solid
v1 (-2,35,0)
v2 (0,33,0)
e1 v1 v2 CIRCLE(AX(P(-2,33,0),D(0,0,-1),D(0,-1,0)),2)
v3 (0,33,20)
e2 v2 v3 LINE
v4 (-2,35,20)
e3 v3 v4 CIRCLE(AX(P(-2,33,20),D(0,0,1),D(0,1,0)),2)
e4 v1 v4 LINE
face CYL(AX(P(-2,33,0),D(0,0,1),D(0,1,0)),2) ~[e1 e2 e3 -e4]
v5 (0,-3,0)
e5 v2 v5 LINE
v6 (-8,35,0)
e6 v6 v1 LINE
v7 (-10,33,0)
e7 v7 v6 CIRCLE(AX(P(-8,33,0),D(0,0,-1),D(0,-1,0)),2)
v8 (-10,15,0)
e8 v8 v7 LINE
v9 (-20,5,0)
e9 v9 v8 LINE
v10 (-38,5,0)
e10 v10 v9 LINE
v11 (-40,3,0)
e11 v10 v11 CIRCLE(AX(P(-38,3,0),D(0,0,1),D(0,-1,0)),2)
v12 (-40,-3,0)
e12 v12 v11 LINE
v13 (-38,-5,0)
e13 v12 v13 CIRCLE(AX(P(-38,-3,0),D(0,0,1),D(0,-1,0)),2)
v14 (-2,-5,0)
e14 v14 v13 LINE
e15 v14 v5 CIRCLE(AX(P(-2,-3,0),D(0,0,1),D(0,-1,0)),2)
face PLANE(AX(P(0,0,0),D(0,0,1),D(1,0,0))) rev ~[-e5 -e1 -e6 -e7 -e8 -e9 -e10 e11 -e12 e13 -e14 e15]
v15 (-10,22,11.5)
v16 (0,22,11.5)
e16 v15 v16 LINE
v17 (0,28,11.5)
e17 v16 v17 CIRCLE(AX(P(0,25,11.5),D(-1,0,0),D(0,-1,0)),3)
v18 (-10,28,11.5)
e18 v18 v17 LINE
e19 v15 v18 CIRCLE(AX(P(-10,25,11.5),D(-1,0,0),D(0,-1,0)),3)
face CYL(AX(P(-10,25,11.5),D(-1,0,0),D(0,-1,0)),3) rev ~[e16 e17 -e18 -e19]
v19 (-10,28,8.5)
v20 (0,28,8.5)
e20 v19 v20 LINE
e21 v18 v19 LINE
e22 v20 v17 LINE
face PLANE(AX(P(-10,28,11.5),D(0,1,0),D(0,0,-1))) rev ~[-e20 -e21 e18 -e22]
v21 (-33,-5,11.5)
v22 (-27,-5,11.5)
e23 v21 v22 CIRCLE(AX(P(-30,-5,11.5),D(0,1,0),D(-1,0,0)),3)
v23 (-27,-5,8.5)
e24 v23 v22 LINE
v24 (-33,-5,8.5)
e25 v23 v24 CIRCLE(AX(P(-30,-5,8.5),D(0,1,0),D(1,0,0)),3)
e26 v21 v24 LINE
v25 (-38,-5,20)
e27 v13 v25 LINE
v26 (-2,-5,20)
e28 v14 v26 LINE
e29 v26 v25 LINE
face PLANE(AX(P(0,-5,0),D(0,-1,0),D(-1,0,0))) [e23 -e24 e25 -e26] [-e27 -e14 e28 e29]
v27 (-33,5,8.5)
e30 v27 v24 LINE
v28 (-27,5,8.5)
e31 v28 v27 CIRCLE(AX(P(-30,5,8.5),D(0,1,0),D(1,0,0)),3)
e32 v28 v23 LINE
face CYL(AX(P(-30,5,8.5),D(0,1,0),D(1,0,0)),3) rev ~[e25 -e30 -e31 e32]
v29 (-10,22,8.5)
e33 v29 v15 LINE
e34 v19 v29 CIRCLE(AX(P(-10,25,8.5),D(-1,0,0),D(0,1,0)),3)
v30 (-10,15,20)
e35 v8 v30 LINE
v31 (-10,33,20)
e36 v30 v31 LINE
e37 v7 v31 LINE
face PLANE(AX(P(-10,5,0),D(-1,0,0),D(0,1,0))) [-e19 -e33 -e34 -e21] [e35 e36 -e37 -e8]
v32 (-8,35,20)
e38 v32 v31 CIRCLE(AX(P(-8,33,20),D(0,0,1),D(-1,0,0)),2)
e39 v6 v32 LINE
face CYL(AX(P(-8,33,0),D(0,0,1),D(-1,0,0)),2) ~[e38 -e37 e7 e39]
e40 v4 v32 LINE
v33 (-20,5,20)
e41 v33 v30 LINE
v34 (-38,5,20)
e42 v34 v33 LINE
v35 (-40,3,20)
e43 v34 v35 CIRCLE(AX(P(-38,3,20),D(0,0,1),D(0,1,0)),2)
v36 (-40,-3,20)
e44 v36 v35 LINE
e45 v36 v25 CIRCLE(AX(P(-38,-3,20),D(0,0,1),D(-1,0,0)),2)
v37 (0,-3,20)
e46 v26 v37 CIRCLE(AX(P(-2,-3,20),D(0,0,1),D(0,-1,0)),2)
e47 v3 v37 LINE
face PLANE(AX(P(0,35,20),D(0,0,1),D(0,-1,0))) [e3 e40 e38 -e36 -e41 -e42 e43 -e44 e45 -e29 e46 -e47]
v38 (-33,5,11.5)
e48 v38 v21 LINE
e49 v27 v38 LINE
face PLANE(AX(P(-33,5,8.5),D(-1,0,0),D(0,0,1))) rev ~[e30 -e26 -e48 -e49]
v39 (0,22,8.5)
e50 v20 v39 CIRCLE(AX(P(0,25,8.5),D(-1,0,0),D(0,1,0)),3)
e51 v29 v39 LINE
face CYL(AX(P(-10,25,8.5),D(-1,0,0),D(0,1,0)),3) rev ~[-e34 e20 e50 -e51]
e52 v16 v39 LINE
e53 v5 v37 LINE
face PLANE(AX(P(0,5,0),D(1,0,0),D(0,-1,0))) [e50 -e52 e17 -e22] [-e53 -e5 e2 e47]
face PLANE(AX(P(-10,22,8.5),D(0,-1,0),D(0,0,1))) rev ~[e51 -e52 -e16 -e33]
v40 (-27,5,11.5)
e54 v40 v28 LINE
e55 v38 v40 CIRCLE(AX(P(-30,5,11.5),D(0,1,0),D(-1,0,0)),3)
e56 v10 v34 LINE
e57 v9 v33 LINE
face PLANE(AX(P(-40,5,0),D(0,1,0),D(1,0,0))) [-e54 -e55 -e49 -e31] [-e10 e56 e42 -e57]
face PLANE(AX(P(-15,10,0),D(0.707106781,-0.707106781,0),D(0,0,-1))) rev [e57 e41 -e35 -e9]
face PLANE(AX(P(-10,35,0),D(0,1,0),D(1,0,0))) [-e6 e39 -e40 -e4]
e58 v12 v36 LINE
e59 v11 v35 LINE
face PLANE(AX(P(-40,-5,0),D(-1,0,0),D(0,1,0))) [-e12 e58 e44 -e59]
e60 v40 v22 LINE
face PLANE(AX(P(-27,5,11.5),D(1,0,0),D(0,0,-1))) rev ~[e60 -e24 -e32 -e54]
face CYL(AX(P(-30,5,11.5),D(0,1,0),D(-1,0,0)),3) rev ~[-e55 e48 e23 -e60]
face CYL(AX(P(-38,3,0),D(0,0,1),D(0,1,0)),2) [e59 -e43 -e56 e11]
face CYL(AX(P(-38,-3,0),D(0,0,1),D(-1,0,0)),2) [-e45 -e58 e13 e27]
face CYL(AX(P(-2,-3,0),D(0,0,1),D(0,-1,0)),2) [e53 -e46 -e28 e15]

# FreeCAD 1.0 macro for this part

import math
import FreeCAD as App
import Part
import Sketcher


def edges_at(feature, points):
    """Names of the edges that pass closest to the given points."""
    edges = feature.Shape.Edges
    near = lambda p: min(range(len(edges)), key=lambda i: edges[i].distToShape(Part.Vertex(*p))[0])
    return sorted({f"Edge{near(p) + 1}" for p in points})


def add_polygon(sketch, points):
    """Adds a closed chain of lines whose ends are joined by coincident constraints."""
    first, n = sketch.GeometryCount, len(points)
    for a, b in zip(points, points[1:] + points[:1]):
        sketch.addGeometry(Part.LineSegment(App.Vector(*a, 0), App.Vector(*b, 0)), False)
    for i in range(n):
        sketch.addConstraint(Sketcher.Constraint("Coincident", first + i, 2, first + (i + 1) % n, 1))

doc = App.newDocument("Part")
body = doc.addObject("PartDesign::Body", "Body")

# Sketch on XY plane
sketch1 = body.newObject("Sketcher::SketchObject", "Sketch")
sketch1.AttachmentSupport = (doc.getObject("XY_Plane"), [""])
sketch1.MapMode = "FlatFace"
add_polygon(sketch1, [(-10, 5), (-40, 5), (-40, -5), (0, -5), (0, 35), (-10, 35)])  # lines 0-5
sketch1.addConstraint(Sketcher.Constraint("Horizontal", 0))
sketch1.addConstraint(Sketcher.Constraint("Vertical", 1))
sketch1.addConstraint(Sketcher.Constraint("Horizontal", 2))
sketch1.addConstraint(Sketcher.Constraint("Vertical", 3))
sketch1.addConstraint(Sketcher.Constraint("Horizontal", 4))
sketch1.addConstraint(Sketcher.Constraint("Vertical", 5))
sketch1.addConstraint(Sketcher.Constraint("PointOnObject", 2, 2, -2))
sketch1.addConstraint(Sketcher.Constraint("Equal", 4, 1))
sketch1.addConstraint(Sketcher.Constraint("Equal", 2, 3))
sketch1.addConstraint(Sketcher.Constraint("DistanceX", 2, 1, 2, 2, 40.0))
sketch1.addConstraint(Sketcher.Constraint("DistanceX", 4, 2, 4, 1, 10.0))
sketch1.addConstraint(Sketcher.Constraint("DistanceY", -1, 1, 0, 2, 5.0))
pad1 = body.newObject("PartDesign::Pad", "Pad")
pad1.Profile = sketch1
pad1.Length = 40

# Sketch on YZ plane
sketch2 = body.newObject("Sketcher::SketchObject", "Sketch001")
sketch2.AttachmentSupport = (doc.getObject("YZ_Plane"), [""])
sketch2.MapMode = "FlatFace"
sketch2.AttachmentOffset = App.Placement(App.Vector(0, 0, -10), App.Rotation())
sketch2.addGeometry(Part.ArcOfCircle(Part.Circle(App.Vector(25, 8.5, 0), App.Vector(0, 0, 1), 3), math.radians(180), math.radians(360)), False)
sketch2.addGeometry(Part.LineSegment(App.Vector(22, 8.5, 0), App.Vector(22, 11.5, 0)), False)
sketch2.addGeometry(Part.ArcOfCircle(Part.Circle(App.Vector(25, 11.5, 0), App.Vector(0, 0, 1), 3), math.radians(0), math.radians(180)), False)
sketch2.addGeometry(Part.LineSegment(App.Vector(28, 11.5, 0), App.Vector(28, 8.5, 0)), False)
sketch2.addGeometry(Part.LineSegment(App.Vector(22, 28.5, 0), App.Vector(22, 31.5, 0)), False)
sketch2.addGeometry(Part.ArcOfCircle(Part.Circle(App.Vector(25, 31.5, 0), App.Vector(0, 0, 1), 3), math.radians(0), math.radians(180)), False)
sketch2.addGeometry(Part.LineSegment(App.Vector(28, 31.5, 0), App.Vector(28, 28.5, 0)), False)
sketch2.addGeometry(Part.ArcOfCircle(Part.Circle(App.Vector(25, 28.5, 0), App.Vector(0, 0, 1), 3), math.radians(180), math.radians(360)), False)
sketch2.addConstraint(Sketcher.Constraint("Tangent", 0, 1, 1, 1))
sketch2.addConstraint(Sketcher.Constraint("Tangent", 1, 2, 2, 2))
sketch2.addConstraint(Sketcher.Constraint("Tangent", 2, 1, 3, 1))
sketch2.addConstraint(Sketcher.Constraint("Tangent", 3, 2, 0, 2))
sketch2.addConstraint(Sketcher.Constraint("Tangent", 4, 2, 5, 2))
sketch2.addConstraint(Sketcher.Constraint("Tangent", 5, 1, 6, 1))
sketch2.addConstraint(Sketcher.Constraint("Tangent", 6, 2, 7, 2))
sketch2.addConstraint(Sketcher.Constraint("Tangent", 7, 1, 4, 1))
sketch2.addConstraint(Sketcher.Constraint("Vertical", 1))
sketch2.addConstraint(Sketcher.Constraint("Vertical", 3))
sketch2.addConstraint(Sketcher.Constraint("Vertical", 4))
sketch2.addConstraint(Sketcher.Constraint("Vertical", 6))
sketch2.addConstraint(Sketcher.Constraint("Equal", 2, 5))
sketch2.addConstraint(Sketcher.Constraint("Vertical", 2, 3, 5, 3))
sketch2.addConstraint(Sketcher.Constraint("Equal", 3, 4))
sketch2.addConstraint(Sketcher.Constraint("Radius", 0, 3.0))
sketch2.addConstraint(Sketcher.Constraint("DistanceY", 1, 1, 1, 2, 3.0))
sketch2.addConstraint(Sketcher.Constraint("DistanceX", -1, 1, 0, 3, 25.0))
sketch2.addConstraint(Sketcher.Constraint("DistanceY", 2, 3, 5, 3, 20.0))
sketch2.addConstraint(Sketcher.Constraint("DistanceY", -1, 1, 0, 3, 8.5))
pocket1 = body.newObject("PartDesign::Pocket", "Pocket")
pocket1.Profile = sketch2
pocket1.Type = "ThroughAll"
pocket1.Reversed = True

# Sketch on XZ plane
sketch3 = body.newObject("Sketcher::SketchObject", "Sketch002")
sketch3.AttachmentSupport = (doc.getObject("XZ_Plane"), [""])
sketch3.MapMode = "FlatFace"
sketch3.AttachmentOffset = App.Placement(App.Vector(0, 0, -5), App.Rotation())
sketch3.addGeometry(Part.ArcOfCircle(Part.Circle(App.Vector(-30, 8.5, 0), App.Vector(0, 0, 1), 3), math.radians(180), math.radians(360)), False)
sketch3.addGeometry(Part.LineSegment(App.Vector(-33, 8.5, 0), App.Vector(-33, 11.5, 0)), False)
sketch3.addGeometry(Part.ArcOfCircle(Part.Circle(App.Vector(-30, 11.5, 0), App.Vector(0, 0, 1), 3), math.radians(0), math.radians(180)), False)
sketch3.addGeometry(Part.LineSegment(App.Vector(-27, 11.5, 0), App.Vector(-27, 8.5, 0)), False)
sketch3.addGeometry(Part.LineSegment(App.Vector(-33, 28.5, 0), App.Vector(-33, 31.5, 0)), False)
sketch3.addGeometry(Part.ArcOfCircle(Part.Circle(App.Vector(-30, 31.5, 0), App.Vector(0, 0, 1), 3), math.radians(0), math.radians(180)), False)
sketch3.addGeometry(Part.LineSegment(App.Vector(-27, 31.5, 0), App.Vector(-27, 28.5, 0)), False)
sketch3.addGeometry(Part.ArcOfCircle(Part.Circle(App.Vector(-30, 28.5, 0), App.Vector(0, 0, 1), 3), math.radians(180), math.radians(360)), False)
sketch3.addConstraint(Sketcher.Constraint("Tangent", 0, 1, 1, 1))
sketch3.addConstraint(Sketcher.Constraint("Tangent", 1, 2, 2, 2))
sketch3.addConstraint(Sketcher.Constraint("Tangent", 2, 1, 3, 1))
sketch3.addConstraint(Sketcher.Constraint("Tangent", 3, 2, 0, 2))
sketch3.addConstraint(Sketcher.Constraint("Tangent", 4, 2, 5, 2))
sketch3.addConstraint(Sketcher.Constraint("Tangent", 5, 1, 6, 1))
sketch3.addConstraint(Sketcher.Constraint("Tangent", 6, 2, 7, 2))
sketch3.addConstraint(Sketcher.Constraint("Tangent", 7, 1, 4, 1))
sketch3.addConstraint(Sketcher.Constraint("Vertical", 1))
sketch3.addConstraint(Sketcher.Constraint("Vertical", 3))
sketch3.addConstraint(Sketcher.Constraint("Vertical", 4))
sketch3.addConstraint(Sketcher.Constraint("Vertical", 6))
sketch3.addConstraint(Sketcher.Constraint("Equal", 2, 5))
sketch3.addConstraint(Sketcher.Constraint("Vertical", 2, 3, 5, 3))
sketch3.addConstraint(Sketcher.Constraint("Equal", 3, 4))
sketch3.addConstraint(Sketcher.Constraint("Radius", 0, 3.0))
sketch3.addConstraint(Sketcher.Constraint("DistanceY", 1, 1, 1, 2, 3.0))
sketch3.addConstraint(Sketcher.Constraint("DistanceX", 0, 3, -1, 1, 30.0))
sketch3.addConstraint(Sketcher.Constraint("DistanceY", 2, 3, 5, 3, 20.0))
sketch3.addConstraint(Sketcher.Constraint("DistanceY", -1, 1, 0, 3, 8.5))
pocket2 = body.newObject("PartDesign::Pocket", "Pocket001")
pocket2.Profile = sketch3
pocket2.Type = "ThroughAll"
pocket2.Reversed = True
doc.recompute()

chamfer = body.newObject("PartDesign::Chamfer", "Chamfer")
chamfer.Base = (pocket2, edges_at(pocket2, [(-10, 5, 20)]))
chamfer.Size = 10
doc.recompute()

fillet = body.newObject("PartDesign::Fillet", "Fillet")
fillet.Base = (chamfer, edges_at(chamfer, [
    (-10, 35, 20),
    (0, 35, 20),
    (0, -5, 20),
    (-40, -5, 20),
    (-40, 5, 20),
]))
fillet.Radius = 2

# Sketch on YZ plane
sketch4 = body.newObject("Sketcher::SketchObject", "Sketch003")
sketch4.AttachmentSupport = (doc.getObject("YZ_Plane"), [""])
sketch4.MapMode = "FlatFace"
add_polygon(sketch4, [(35, 20), (35, 40), (-5, 40), (-5, 20)])  # lines 0-3
sketch4.addConstraint(Sketcher.Constraint("Vertical", 0))
sketch4.addConstraint(Sketcher.Constraint("Horizontal", 1))
sketch4.addConstraint(Sketcher.Constraint("Vertical", 2))
sketch4.addConstraint(Sketcher.Constraint("Horizontal", 3))
sketch4.addConstraint(Sketcher.Constraint("DistanceY", 0, 1, 0, 2, 20.0))
sketch4.addConstraint(Sketcher.Constraint("DistanceY", -1, 1, 2, 2, 20.0))
sketch4.addConstraint(Sketcher.Constraint("DistanceX", 1, 2, 1, 1, 40.0))
sketch4.addConstraint(Sketcher.Constraint("DistanceX", -1, 1, 0, 2, 35.0))
pocket3 = body.newObject("PartDesign::Pocket", "Pocket002")
pocket3.Profile = sketch4
pocket3.Type = "ThroughAll"

doc.recompute()
